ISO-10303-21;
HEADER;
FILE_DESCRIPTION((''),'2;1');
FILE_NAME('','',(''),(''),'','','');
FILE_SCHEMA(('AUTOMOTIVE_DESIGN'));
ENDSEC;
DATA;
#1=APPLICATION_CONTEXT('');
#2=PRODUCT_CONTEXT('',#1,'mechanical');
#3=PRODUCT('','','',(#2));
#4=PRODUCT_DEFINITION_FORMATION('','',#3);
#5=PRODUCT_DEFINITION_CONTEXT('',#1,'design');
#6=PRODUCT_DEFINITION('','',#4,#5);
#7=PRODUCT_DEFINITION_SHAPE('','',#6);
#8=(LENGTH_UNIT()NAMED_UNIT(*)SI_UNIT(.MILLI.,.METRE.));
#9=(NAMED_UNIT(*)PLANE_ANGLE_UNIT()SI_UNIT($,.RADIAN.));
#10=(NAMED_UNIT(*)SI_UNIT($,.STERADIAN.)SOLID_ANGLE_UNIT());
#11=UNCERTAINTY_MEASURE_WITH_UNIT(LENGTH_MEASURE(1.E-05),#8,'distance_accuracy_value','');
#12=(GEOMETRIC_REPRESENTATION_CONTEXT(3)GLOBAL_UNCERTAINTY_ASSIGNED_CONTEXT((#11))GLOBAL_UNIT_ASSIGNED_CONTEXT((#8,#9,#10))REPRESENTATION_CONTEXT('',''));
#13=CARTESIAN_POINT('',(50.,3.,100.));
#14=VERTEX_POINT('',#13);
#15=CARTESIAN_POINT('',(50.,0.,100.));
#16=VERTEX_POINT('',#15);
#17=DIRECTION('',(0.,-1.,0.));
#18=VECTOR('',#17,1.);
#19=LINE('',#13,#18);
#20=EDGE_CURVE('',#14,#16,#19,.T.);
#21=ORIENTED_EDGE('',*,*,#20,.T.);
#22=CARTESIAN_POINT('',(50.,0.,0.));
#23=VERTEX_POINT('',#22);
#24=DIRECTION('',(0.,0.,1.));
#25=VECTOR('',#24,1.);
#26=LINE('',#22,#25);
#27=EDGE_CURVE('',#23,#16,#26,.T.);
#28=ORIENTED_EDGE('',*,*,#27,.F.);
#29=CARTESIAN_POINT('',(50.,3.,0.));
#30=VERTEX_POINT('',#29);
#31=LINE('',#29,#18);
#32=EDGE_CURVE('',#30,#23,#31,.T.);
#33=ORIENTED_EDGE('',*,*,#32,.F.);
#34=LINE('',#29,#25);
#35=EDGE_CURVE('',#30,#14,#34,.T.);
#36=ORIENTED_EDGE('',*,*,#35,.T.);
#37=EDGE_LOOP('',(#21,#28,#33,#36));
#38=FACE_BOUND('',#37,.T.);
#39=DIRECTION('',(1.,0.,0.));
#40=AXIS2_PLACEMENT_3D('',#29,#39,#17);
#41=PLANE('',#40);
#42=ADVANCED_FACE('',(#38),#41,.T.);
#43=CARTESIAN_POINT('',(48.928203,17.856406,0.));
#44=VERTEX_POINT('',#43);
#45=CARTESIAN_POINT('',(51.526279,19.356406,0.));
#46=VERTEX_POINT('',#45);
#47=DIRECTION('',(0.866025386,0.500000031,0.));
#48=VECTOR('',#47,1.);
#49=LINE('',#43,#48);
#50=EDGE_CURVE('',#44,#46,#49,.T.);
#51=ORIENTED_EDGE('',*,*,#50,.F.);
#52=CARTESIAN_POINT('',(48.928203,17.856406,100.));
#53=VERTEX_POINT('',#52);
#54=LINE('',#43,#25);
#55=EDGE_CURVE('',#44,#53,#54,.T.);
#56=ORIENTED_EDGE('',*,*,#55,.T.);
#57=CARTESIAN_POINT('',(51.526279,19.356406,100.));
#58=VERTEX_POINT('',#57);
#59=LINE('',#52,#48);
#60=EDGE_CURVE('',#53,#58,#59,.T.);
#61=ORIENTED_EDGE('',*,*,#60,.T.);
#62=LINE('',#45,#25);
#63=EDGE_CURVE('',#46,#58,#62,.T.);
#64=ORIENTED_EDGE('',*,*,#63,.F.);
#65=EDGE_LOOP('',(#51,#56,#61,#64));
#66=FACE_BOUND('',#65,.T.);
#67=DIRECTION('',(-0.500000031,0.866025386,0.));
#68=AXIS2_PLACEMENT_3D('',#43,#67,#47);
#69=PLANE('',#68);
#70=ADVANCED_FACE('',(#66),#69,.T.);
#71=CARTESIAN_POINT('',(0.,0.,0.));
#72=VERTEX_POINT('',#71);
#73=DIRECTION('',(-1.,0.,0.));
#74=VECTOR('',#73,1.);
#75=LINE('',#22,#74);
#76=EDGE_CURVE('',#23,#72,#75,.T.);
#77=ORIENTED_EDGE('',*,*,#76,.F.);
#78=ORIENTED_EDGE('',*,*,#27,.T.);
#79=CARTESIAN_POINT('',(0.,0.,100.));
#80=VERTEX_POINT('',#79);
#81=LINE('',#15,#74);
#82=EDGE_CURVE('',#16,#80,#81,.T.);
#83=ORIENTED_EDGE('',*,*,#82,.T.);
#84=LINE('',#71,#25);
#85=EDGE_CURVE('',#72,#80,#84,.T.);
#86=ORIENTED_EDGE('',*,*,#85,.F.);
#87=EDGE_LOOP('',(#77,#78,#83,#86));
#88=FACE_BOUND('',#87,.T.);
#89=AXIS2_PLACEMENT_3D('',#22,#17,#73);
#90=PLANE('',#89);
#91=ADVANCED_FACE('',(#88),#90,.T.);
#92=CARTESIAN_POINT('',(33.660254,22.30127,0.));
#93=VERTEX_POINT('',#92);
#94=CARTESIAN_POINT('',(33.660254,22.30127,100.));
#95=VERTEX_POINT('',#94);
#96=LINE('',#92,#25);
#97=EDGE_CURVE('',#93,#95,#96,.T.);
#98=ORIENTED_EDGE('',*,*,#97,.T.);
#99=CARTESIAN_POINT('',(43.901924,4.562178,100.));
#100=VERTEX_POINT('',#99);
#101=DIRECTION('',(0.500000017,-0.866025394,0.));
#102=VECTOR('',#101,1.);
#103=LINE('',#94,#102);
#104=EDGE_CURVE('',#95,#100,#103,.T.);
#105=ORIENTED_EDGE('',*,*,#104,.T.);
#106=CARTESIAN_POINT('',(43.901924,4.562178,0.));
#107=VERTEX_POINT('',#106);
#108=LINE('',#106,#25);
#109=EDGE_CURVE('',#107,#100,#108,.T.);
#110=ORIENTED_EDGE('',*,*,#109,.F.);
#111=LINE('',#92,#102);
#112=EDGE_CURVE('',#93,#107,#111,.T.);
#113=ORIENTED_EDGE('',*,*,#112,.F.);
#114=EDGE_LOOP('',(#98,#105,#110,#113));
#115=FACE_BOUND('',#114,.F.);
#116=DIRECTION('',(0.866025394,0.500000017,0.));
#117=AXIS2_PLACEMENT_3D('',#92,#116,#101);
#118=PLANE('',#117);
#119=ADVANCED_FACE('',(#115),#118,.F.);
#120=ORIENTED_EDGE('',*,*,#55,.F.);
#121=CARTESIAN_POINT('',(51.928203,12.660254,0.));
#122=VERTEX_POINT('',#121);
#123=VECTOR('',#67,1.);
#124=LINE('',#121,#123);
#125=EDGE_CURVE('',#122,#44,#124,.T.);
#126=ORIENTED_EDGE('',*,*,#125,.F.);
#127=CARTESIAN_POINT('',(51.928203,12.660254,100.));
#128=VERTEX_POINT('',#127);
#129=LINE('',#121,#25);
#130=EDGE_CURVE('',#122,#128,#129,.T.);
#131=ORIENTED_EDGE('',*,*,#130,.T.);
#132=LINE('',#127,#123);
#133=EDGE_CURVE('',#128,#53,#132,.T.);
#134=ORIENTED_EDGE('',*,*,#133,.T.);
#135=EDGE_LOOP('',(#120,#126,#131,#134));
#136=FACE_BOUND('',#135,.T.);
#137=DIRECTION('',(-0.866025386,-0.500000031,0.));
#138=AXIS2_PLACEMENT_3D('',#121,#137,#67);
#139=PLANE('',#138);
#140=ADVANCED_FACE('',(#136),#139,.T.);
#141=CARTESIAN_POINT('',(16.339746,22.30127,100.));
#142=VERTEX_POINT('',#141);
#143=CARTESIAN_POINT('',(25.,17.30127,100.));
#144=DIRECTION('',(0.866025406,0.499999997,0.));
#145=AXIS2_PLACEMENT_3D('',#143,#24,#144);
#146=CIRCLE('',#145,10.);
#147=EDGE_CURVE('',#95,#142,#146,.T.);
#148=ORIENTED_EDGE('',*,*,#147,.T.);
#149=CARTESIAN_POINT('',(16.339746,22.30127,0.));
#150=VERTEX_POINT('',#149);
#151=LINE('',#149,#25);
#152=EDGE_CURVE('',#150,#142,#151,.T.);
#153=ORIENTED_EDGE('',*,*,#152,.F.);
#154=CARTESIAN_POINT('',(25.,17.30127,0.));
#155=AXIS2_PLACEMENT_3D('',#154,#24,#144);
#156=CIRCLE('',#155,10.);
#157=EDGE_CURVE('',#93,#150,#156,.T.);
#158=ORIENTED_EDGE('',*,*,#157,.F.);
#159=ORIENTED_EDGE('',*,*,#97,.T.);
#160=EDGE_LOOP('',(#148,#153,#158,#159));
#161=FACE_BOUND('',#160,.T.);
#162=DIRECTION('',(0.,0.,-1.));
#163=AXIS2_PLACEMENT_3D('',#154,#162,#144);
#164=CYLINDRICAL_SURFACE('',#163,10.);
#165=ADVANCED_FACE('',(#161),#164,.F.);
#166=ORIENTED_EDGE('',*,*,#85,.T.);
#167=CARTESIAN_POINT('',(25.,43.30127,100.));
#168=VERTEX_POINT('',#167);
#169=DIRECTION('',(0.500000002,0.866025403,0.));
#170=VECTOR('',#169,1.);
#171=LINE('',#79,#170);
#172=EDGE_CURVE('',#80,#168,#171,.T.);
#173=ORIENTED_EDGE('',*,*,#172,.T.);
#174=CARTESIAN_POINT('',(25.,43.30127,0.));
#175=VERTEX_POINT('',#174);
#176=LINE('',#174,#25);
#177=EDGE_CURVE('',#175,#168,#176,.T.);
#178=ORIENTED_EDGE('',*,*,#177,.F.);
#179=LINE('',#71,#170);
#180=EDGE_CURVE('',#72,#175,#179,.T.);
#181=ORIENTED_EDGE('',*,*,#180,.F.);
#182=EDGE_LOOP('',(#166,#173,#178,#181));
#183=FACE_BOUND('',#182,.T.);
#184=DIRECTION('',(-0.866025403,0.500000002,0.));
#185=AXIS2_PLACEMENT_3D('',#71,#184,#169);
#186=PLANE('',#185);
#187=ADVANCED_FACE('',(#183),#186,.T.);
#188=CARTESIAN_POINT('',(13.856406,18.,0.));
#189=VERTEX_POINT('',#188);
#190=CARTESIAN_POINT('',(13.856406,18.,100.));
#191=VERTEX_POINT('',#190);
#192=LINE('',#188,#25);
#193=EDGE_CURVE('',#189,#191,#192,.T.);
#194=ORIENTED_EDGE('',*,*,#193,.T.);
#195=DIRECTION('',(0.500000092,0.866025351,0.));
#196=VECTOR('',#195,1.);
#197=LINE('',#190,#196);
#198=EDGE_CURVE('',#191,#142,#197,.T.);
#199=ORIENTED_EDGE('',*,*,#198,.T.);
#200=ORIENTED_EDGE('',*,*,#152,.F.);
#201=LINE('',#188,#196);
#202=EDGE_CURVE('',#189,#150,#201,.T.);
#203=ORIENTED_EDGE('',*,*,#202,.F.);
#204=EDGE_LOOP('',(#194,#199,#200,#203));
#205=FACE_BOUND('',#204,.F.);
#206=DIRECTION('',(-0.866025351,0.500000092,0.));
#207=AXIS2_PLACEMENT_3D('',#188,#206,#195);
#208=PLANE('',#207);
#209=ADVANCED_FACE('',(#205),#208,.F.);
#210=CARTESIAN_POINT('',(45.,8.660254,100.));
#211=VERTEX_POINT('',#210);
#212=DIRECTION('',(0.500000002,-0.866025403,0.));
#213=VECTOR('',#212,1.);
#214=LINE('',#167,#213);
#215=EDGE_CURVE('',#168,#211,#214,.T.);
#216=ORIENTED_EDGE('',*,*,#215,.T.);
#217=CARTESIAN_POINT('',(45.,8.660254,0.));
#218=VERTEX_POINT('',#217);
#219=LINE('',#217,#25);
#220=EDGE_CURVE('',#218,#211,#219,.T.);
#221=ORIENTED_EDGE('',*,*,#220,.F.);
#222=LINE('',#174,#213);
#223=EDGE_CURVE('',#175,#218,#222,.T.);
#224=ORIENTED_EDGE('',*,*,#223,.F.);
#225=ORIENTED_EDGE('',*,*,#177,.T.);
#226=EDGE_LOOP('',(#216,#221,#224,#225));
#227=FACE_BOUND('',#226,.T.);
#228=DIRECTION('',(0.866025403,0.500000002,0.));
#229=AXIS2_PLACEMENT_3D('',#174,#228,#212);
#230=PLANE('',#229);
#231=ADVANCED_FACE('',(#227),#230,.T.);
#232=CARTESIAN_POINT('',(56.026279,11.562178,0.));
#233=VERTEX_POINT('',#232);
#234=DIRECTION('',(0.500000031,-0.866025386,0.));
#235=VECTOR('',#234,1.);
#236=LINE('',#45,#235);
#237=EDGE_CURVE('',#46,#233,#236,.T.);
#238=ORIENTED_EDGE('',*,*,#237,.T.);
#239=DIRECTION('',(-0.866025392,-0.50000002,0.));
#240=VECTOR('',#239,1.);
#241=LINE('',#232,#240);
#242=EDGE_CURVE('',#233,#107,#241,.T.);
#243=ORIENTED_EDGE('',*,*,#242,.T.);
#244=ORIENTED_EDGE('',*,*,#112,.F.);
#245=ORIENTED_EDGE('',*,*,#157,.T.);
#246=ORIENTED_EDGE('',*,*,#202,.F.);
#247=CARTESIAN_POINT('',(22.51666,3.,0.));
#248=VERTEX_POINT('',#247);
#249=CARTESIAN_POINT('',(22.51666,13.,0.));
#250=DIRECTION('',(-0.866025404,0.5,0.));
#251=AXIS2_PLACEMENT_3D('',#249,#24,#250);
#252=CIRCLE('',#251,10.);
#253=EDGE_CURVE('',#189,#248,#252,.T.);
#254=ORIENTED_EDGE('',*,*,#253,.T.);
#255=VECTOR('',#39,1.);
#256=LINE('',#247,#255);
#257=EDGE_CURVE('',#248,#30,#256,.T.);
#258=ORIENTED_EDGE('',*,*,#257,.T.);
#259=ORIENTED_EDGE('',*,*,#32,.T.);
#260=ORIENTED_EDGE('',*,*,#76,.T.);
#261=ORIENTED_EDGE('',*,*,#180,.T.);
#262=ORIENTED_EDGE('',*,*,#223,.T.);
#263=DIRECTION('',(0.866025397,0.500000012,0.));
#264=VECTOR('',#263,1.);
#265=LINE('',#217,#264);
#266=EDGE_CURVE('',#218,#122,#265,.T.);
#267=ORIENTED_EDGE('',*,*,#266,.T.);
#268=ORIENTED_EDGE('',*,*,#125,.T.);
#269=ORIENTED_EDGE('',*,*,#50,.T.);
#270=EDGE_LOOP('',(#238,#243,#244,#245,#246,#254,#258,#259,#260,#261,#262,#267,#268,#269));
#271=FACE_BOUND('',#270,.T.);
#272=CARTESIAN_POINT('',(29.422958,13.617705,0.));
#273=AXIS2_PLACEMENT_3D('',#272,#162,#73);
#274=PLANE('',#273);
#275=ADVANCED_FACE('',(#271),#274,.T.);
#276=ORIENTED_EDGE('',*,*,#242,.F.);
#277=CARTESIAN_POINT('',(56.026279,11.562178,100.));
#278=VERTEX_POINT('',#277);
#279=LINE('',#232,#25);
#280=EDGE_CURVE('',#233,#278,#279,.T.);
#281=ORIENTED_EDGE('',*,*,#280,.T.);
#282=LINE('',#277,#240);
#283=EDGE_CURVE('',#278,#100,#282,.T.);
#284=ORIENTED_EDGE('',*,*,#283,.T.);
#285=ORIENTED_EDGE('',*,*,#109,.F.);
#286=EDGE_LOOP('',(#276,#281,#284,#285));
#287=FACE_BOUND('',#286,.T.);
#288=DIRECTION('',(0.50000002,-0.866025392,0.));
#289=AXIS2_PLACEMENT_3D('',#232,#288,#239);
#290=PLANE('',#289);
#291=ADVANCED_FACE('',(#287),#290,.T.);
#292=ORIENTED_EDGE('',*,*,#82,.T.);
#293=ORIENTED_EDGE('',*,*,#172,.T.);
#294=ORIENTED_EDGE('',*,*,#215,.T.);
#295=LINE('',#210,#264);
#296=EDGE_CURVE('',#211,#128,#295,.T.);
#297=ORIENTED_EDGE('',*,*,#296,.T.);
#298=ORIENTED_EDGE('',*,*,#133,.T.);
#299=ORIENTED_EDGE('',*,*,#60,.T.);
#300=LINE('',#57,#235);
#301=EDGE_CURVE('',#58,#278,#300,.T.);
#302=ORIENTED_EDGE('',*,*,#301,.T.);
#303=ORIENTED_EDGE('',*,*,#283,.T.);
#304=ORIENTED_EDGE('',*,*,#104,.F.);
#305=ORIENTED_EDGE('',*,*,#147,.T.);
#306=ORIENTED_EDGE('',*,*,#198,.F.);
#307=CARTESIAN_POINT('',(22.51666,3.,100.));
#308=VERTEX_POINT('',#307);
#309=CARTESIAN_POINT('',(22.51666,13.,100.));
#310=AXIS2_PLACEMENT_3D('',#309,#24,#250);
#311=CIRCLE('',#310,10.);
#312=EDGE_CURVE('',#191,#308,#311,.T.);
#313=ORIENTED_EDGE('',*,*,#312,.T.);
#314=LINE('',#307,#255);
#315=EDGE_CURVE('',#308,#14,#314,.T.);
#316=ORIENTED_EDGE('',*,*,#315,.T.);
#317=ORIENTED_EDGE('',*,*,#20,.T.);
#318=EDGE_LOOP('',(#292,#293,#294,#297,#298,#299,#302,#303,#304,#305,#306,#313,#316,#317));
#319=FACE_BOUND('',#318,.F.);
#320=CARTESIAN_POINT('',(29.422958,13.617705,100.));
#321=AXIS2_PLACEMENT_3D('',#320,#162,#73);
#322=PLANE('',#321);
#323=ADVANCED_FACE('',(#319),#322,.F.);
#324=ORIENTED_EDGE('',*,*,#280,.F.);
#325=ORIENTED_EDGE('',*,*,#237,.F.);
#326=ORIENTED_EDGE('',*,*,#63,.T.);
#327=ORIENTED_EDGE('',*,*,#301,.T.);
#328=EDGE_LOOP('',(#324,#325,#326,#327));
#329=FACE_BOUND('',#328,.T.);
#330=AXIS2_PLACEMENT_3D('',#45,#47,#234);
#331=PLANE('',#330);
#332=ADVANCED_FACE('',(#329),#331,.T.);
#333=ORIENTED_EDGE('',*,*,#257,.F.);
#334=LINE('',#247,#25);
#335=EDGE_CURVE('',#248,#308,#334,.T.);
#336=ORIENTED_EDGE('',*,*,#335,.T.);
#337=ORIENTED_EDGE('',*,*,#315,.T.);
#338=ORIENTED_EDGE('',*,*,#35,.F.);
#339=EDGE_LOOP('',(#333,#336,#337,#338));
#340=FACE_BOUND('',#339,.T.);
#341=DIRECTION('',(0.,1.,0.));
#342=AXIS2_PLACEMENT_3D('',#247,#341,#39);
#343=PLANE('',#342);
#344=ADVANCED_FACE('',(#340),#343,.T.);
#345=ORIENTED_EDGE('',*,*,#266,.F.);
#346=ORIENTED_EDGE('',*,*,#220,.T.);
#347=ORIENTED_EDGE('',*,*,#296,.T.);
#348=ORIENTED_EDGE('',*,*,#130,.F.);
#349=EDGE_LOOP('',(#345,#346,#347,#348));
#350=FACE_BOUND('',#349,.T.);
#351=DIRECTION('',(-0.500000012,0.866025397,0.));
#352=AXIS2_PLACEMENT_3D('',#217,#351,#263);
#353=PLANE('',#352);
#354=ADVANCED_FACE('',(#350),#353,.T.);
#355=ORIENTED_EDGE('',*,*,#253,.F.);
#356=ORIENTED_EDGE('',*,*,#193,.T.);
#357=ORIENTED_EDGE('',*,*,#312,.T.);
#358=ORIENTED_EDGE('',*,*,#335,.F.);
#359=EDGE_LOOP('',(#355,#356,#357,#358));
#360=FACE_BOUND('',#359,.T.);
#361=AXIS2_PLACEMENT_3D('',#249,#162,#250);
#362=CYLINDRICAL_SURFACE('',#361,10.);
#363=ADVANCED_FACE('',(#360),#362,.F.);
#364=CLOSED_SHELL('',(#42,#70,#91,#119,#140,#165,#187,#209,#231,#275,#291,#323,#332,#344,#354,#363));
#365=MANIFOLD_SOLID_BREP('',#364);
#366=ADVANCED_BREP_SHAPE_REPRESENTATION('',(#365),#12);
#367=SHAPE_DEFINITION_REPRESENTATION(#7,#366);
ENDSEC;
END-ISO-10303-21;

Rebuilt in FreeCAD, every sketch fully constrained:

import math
import FreeCAD as App
import Part
import Sketcher
Q = App.Units.Quantity

doc = App.newDocument("Part")
params = doc.addObject("Spreadsheet::Sheet", "Params")
for row, (alias, value) in enumerate([
    ("sketch1_radius", "10 mm"),
    ("sketch1_width", "50 mm"),
    ("sketch1_height", "3 mm"),
    ("sketch1_length", "13.999999 mm"),
    ("sketch1_length2", "8.999999 mm"),
    ("pad1_length", "100 mm"),
], start=1):
    params.set(f"A{row}", alias)
    params.set(f"B{row}", "=" + value)
    params.setAlias(f"B{row}", alias)

body = doc.addObject("PartDesign::Body", "Body")

# Sketch on XY plane
sketch1 = body.newObject("Sketcher::SketchObject", "Sketch")
sketch1.AttachmentSupport = (doc.getObject("XY_Plane"), [""])
sketch1.MapMode = "FlatFace"
sketch1.addGeometry([
    Part.LineSegment(App.Vector(0, 0, 0), App.Vector(50, 0, 0)),  # 0
    Part.LineSegment(App.Vector(50, 0, 0), App.Vector(50, 3, 0)),  # 1
    Part.LineSegment(App.Vector(50, 3, 0), App.Vector(22.5, 3, 0)),  # 2
    Part.ArcOfCircle(Part.Circle(App.Vector(22.5, 13, 0), App.Vector(0, 0, 1), 10), math.radians(150), math.radians(270)),  # 3
    Part.LineSegment(App.Vector(13.9, 18, 0), App.Vector(16.3, 22.3, 0)),  # 4
    Part.ArcOfCircle(Part.Circle(App.Vector(25, 17.3, 0), App.Vector(0, 0, 1), 10), math.radians(30), math.radians(150)),  # 5
    Part.LineSegment(App.Vector(33.7, 22.3, 0), App.Vector(43.9, 4.6, 0)),  # 6
    Part.LineSegment(App.Vector(43.9, 4.6, 0), App.Vector(56, 11.6, 0)),  # 7
    Part.LineSegment(App.Vector(56, 11.6, 0), App.Vector(51.5, 19.4, 0)),  # 8
    Part.LineSegment(App.Vector(51.5, 19.4, 0), App.Vector(48.9, 17.9, 0)),  # 9
    Part.LineSegment(App.Vector(48.9, 17.9, 0), App.Vector(51.9, 12.7, 0)),  # 10
    Part.LineSegment(App.Vector(51.9, 12.7, 0), App.Vector(45, 8.7, 0)),  # 11
    Part.LineSegment(App.Vector(45, 8.7, 0), App.Vector(25, 43.3, 0)),  # 12
    Part.LineSegment(App.Vector(25, 43.3, 0), App.Vector(0, 0, 0)),  # 13
], False)
sketch1.addConstraint([
    Sketcher.Constraint("Coincident", 0, 2, 1, 1),
    Sketcher.Constraint("Coincident", 1, 2, 2, 1),
    Sketcher.Constraint("Tangent", 2, 2, 3, 2),
    Sketcher.Constraint("Tangent", 3, 1, 4, 1),
    Sketcher.Constraint("Tangent", 4, 2, 5, 2),
    Sketcher.Constraint("Tangent", 5, 1, 6, 1),
    Sketcher.Constraint("Coincident", 6, 2, 7, 1),
    Sketcher.Constraint("Coincident", 7, 2, 8, 1),
    Sketcher.Constraint("Coincident", 8, 2, 9, 1),
    Sketcher.Constraint("Coincident", 9, 2, 10, 1),
    Sketcher.Constraint("Coincident", 10, 2, 11, 1),
    Sketcher.Constraint("Coincident", 11, 2, 12, 1),
    Sketcher.Constraint("Coincident", 12, 2, 13, 1),
    Sketcher.Constraint("Coincident", 13, 2, 0, 1),
    Sketcher.Constraint("Horizontal", 0),
    Sketcher.Constraint("Vertical", 1),
    Sketcher.Constraint("Horizontal", 2),
    Sketcher.Constraint("Coincident", 13, 2, -1, 1),
    Sketcher.Constraint("Equal", 3, 5),
    Sketcher.Constraint("Perpendicular", 6, 7),
    Sketcher.Constraint("Perpendicular", 7, 8),
    Sketcher.Constraint("Perpendicular", 8, 9),
    Sketcher.Constraint("Perpendicular", 9, 10),
    Sketcher.Constraint("Perpendicular", 10, 11),
    Sketcher.Constraint("Perpendicular", 11, 12),
    Sketcher.Constraint("Parallel", 4, 13),
    Sketcher.Constraint("Horizontal", 4, 2, 5, 1),
    Sketcher.Constraint("Vertical", 5, 3, 12, 2),
    Sketcher.Constraint("Radius", 3, 10.0),
    Sketcher.Constraint("DistanceX", 0, 1, 0, 2, 50.0),
    Sketcher.Constraint("DistanceY", 1, 1, 1, 2, 3.0),
    Sketcher.Constraint("Angle", 4, Q("59.999994 deg")),
    Sketcher.Constraint("Distance", 7, 13.999999),
    Sketcher.Constraint("Distance", 8, 8.999999),
    Sketcher.Constraint("Distance", 9, 3.0),
    Sketcher.Constraint("Distance", 10, 6.0),
    Sketcher.Constraint("Distance", 11, 8.0),
    Sketcher.Constraint("Distance", 12, 40.0),
    Sketcher.Constraint("Distance", 13, 50.0),
])
sketch1.setExpression("Constraints[28]", "Params.sketch1_radius")
sketch1.setExpression("Constraints[29]", "Params.sketch1_width")
sketch1.setExpression("Constraints[30]", "Params.sketch1_height")
sketch1.setExpression("Constraints[32]", "Params.sketch1_length")
sketch1.setExpression("Constraints[33]", "Params.sketch1_length2")
pad1 = body.newObject("PartDesign::Pad", "Pad")
pad1.Profile = sketch1
pad1.setExpression("Length", "Params.pad1_length")

doc.recompute()
